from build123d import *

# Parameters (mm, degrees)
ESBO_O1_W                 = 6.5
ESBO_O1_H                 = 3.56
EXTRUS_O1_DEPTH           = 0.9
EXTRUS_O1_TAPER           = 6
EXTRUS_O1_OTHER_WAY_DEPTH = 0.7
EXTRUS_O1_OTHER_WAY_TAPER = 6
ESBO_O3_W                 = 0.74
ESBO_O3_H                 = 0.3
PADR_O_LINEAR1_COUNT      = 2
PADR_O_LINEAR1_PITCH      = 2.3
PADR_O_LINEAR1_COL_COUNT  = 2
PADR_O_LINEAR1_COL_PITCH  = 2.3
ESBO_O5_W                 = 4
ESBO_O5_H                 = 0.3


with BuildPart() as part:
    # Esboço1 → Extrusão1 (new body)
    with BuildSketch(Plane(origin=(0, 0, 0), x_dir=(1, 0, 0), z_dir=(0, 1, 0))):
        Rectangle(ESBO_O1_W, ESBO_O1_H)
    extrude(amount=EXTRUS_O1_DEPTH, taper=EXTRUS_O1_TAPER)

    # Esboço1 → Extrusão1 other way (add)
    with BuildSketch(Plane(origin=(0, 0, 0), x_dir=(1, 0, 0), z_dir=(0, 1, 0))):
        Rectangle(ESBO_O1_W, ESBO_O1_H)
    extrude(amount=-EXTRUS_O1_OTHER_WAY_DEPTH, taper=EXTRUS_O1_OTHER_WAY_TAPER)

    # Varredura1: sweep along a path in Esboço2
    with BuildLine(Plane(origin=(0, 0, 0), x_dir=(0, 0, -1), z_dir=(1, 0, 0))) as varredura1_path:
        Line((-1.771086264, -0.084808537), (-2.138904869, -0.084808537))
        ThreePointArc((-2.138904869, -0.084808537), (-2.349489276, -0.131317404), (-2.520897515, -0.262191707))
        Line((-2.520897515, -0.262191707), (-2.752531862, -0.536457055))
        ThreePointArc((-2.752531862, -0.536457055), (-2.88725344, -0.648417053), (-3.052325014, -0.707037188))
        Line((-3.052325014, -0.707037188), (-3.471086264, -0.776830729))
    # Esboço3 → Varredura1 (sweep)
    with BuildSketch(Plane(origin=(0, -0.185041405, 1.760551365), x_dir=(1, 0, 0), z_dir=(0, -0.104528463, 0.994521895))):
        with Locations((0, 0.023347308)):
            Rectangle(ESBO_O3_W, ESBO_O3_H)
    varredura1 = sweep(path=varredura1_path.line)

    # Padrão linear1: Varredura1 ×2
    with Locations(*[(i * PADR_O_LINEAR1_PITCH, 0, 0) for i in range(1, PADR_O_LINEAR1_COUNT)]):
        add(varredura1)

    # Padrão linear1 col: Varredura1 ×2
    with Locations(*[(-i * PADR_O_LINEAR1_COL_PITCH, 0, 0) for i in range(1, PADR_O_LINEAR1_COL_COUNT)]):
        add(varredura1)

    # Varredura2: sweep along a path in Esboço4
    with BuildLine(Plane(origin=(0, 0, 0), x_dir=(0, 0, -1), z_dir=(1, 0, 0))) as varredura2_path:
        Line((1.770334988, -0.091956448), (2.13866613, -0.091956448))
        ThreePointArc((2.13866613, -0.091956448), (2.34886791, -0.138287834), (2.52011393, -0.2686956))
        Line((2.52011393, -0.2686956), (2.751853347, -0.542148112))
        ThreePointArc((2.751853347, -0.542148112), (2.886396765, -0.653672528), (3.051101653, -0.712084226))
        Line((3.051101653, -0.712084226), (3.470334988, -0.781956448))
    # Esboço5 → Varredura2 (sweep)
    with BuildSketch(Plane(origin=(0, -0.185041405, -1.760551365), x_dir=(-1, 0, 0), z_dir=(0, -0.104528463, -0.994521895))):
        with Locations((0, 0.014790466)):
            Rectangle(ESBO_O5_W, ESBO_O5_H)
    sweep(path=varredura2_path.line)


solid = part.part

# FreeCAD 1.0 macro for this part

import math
import FreeCAD as App
import Part
import Sketcher
from FreeCAD import Vector

doc = App.newDocument("Part")
params = doc.addObject("Spreadsheet::Sheet", "Params")
for row, (alias, value) in enumerate([
    ("sketch1_width", "6.5 mm"),
    ("sketch1_height", "3.56 mm"),
    ("pad1_length", "0.9 mm"),
    ("pad1_taper", "-6 deg"),
    ("sketch2_width", "6.5 mm"),
    ("sketch2_height", "3.56 mm"),
    ("pad2_length", "0.7 mm"),
    ("pad2_taper", "-6 deg"),
    ("sketch3_height", "0.3 mm"),
    ("sketch3_width", "0.74 mm"),
    ("sketch4_radius", "0.5 mm"),
    ("linearpattern_pitch", "2.3 mm"),
    ("linearpattern2_pitch", "2.3 mm"),
    ("sketch5_width", "4 mm"),
    ("sketch5_height", "0.3 mm"),
    ("sketch6_radius", "0.5 mm"),
], start=1):
    params.set(f"A{row}", alias)
    params.set(f"B{row}", "=" + value)
    params.setAlias(f"B{row}", alias)

body = doc.addObject("PartDesign::Body", "Body")

# Sketch on XZ plane
sketch1 = doc.addObject("Sketcher::SketchObject", "Sketch")
body.addObject(sketch1)
sketch1.AttachmentSupport = (doc.XZ_Plane, [""])
sketch1.MapMode = "FlatFace"
sketch1.addGeometry([
    Part.LineSegment(Vector(-3.2, -1.8, 0), Vector(-3.2, 1.8, 0)),
    Part.LineSegment(Vector(-3.2, 1.8, 0), Vector(3.2, 1.8, 0)),
    Part.LineSegment(Vector(3.2, 1.8, 0), Vector(3.2, -1.8, 0)),
    Part.LineSegment(Vector(3.2, -1.8, 0), Vector(-3.2, -1.8, 0)),
], False)
sketch1.addConstraint([
    Sketcher.Constraint("Coincident", 0, 2, 1, 1),
    Sketcher.Constraint("Coincident", 1, 2, 2, 1),
    Sketcher.Constraint("Coincident", 2, 2, 3, 1),
    Sketcher.Constraint("Coincident", 3, 2, 0, 1),
    Sketcher.Constraint("Vertical", 0),
    Sketcher.Constraint("Horizontal", 1),
    Sketcher.Constraint("Vertical", 2),
    Sketcher.Constraint("Horizontal", 3),
    Sketcher.Constraint("Symmetric", 0, 2, 2, 2, -1, 1),
    Sketcher.Constraint("DistanceX", 1, 1, 1, 2, 6.5),
    Sketcher.Constraint("DistanceY", 0, 1, 0, 2, 3.56),
])
sketch1.setExpression("Constraints[9]", "Params.sketch1_width")
sketch1.setExpression("Constraints[10]", "Params.sketch1_height")
pad1 = doc.addObject("PartDesign::Pad", "Pad")
body.addObject(pad1)
pad1.Profile = sketch1
pad1.setExpression("Length", "Params.pad1_length")
pad1.Reversed = True
pad1.setExpression("TaperAngle", "Params.pad1_taper")

# Sketch on XZ plane
sketch2 = doc.addObject("Sketcher::SketchObject", "Sketch001")
body.addObject(sketch2)
sketch2.AttachmentSupport = (doc.XZ_Plane, [""])
sketch2.MapMode = "FlatFace"
sketch2.addGeometry([
    Part.LineSegment(Vector(-3.2, -1.8, 0), Vector(-3.2, 1.8, 0)),
    Part.LineSegment(Vector(-3.2, 1.8, 0), Vector(3.2, 1.8, 0)),
    Part.LineSegment(Vector(3.2, 1.8, 0), Vector(3.2, -1.8, 0)),
    Part.LineSegment(Vector(3.2, -1.8, 0), Vector(-3.2, -1.8, 0)),
], False)
sketch2.addConstraint([
    Sketcher.Constraint("Coincident", 0, 2, 1, 1),
    Sketcher.Constraint("Coincident", 1, 2, 2, 1),
    Sketcher.Constraint("Coincident", 2, 2, 3, 1),
    Sketcher.Constraint("Coincident", 3, 2, 0, 1),
    Sketcher.Constraint("Vertical", 0),
    Sketcher.Constraint("Horizontal", 1),
    Sketcher.Constraint("Vertical", 2),
    Sketcher.Constraint("Horizontal", 3),
    Sketcher.Constraint("Symmetric", 0, 2, 2, 2, -1, 1),
    Sketcher.Constraint("DistanceX", 1, 1, 1, 2, 6.5),
    Sketcher.Constraint("DistanceY", 0, 1, 0, 2, 3.56),
])
sketch2.setExpression("Constraints[9]", "Params.sketch2_width")
sketch2.setExpression("Constraints[10]", "Params.sketch2_height")
pad2 = doc.addObject("PartDesign::Pad", "Pad001")
body.addObject(pad2)
pad2.Profile = sketch2
pad2.setExpression("Length", "Params.pad2_length")
pad2.setExpression("TaperAngle", "Params.pad2_taper")

# Sketch on an angled plane
sketch3 = doc.addObject("Sketcher::SketchObject", "Sketch002")
body.addObject(sketch3)
sketch3.Placement = App.Placement(Vector(0, -0.185041, 1.760551), App.Rotation(Vector(1, 0, 0), Vector(0, 0.994521895, 0.104528463), Vector(0, -0.104528463, 0.994521895), "ZXY"))
sketch3.addGeometry([
    Part.LineSegment(Vector(-0.37, 0.17, 0), Vector(-0.37, -0.13, 0)),
    Part.LineSegment(Vector(-0.37, -0.13, 0), Vector(0.37, -0.13, 0)),
    Part.LineSegment(Vector(0.37, -0.13, 0), Vector(0.37, 0.17, 0)),
    Part.LineSegment(Vector(0.37, 0.17, 0), Vector(-0.37, 0.17, 0)),
], False)
sketch3.addConstraint([
    Sketcher.Constraint("Coincident", 0, 2, 1, 1),
    Sketcher.Constraint("Coincident", 1, 2, 2, 1),
    Sketcher.Constraint("Coincident", 2, 2, 3, 1),
    Sketcher.Constraint("Coincident", 3, 2, 0, 1),
    Sketcher.Constraint("Vertical", 0),
    Sketcher.Constraint("Horizontal", 1),
    Sketcher.Constraint("Vertical", 2),
    Sketcher.Constraint("Horizontal", 3),
    Sketcher.Constraint("DistanceY", 0, 2, 0, 1, 0.3),
    Sketcher.Constraint("DistanceX", 1, 1, 1, 2, 0.74),
    Sketcher.Constraint("DistanceX", 0, 2, -1, 1, 0.37),
    Sketcher.Constraint("DistanceY", 0, 2, -1, 1, 0.126653),
])
sketch3.setExpression("Constraints[8]", "Params.sketch3_height")
sketch3.setExpression("Constraints[9]", "Params.sketch3_width")

# Sketch on YZ plane
sketch4 = doc.addObject("Sketcher::SketchObject", "Sketch003")
body.addObject(sketch4)
sketch4.AttachmentSupport = (doc.YZ_Plane, [""])
sketch4.MapMode = "FlatFace"
sketch4.addGeometry([
    Part.LineSegment(Vector(-0.08, 1.77, 0), Vector(-0.08, 2.14, 0)),  # 0
    Part.ArcOfCircle(Part.Circle(Vector(-0.58, 2.14, 0), Vector(0, 0, 1), 0.5), math.radians(0), math.radians(50)),  # 1
    Part.LineSegment(Vector(-0.26, 2.52, 0), Vector(-0.54, 2.75, 0)),  # 2
    Part.ArcOfCircle(Part.Circle(Vector(-0.21, 3.13, 0), Vector(0, 0, 1), 0.5), math.radians(-171), math.radians(-130)),  # 3
    Part.LineSegment(Vector(-0.71, 3.05, 0), Vector(-0.78, 3.47, 0)),  # 4
], False)
sketch4.addConstraint([
    Sketcher.Constraint("Tangent", 0, 2, 1, 1),
    Sketcher.Constraint("Tangent", 1, 2, 2, 1),
    Sketcher.Constraint("Tangent", 2, 2, 3, 2),
    Sketcher.Constraint("Tangent", 3, 1, 4, 1),
    Sketcher.Constraint("Vertical", 0),
    Sketcher.Constraint("Equal", 1, 3),
    Sketcher.Constraint("Radius", 1, 0.5),
    Sketcher.Constraint("DistanceY", 0, 1, 0, 2, 0.367819),
    Sketcher.Constraint("DistanceY", 3, 1, 3, 3, 0.082199),
    Sketcher.Constraint("DistanceX", 1, 3, -1, 1, 0.584809),
    Sketcher.Constraint("DistanceX", 3, 3, -1, 1, 0.21384),
    Sketcher.Constraint("DistanceX", 1, 2, -1, 1, 0.262192),
    Sketcher.Constraint("DistanceY", -1, 1, 2, 2, 2.752532),
    Sketcher.Constraint("DistanceX", 4, 2, -1, 1, 0.776831),
])
sketch4.setExpression("Constraints[6]", "Params.sketch4_radius")
doc.recompute()

additivepipe = doc.addObject("PartDesign::AdditivePipe", "AdditivePipe")
body.addObject(additivepipe)
additivepipe.Profile = sketch3
additivepipe.Spine = (sketch4, ["Edge1", "Edge2", "Edge3", "Edge4", "Edge5"])
doc.recompute()

linearpattern = doc.addObject("PartDesign::LinearPattern", "LinearPattern")
body.addObject(linearpattern)
linearpattern.Originals = [additivepipe]
linearpattern.Direction = (doc.X_Axis, [""])
linearpattern.Mode = "offset"
linearpattern.setExpression("Offset", "Params.linearpattern_pitch")
linearpattern.Occurrences = 2
body.Tip = linearpattern
doc.recompute()

linearpattern2 = doc.addObject("PartDesign::LinearPattern", "LinearPattern001")
body.addObject(linearpattern2)
linearpattern2.Originals = [additivepipe]
linearpattern2.Direction = (doc.X_Axis, [""])
linearpattern2.Mode = "offset"
linearpattern2.setExpression("Offset", "Params.linearpattern2_pitch")
linearpattern2.Occurrences = 2
linearpattern2.Reversed = True
body.Tip = linearpattern2

# Sketch on an angled plane
sketch5 = doc.addObject("Sketcher::SketchObject", "Sketch004")
body.addObject(sketch5)
sketch5.Placement = App.Placement(Vector(0, -0.185041, -1.760551), App.Rotation(Vector(-1, 0, 0), Vector(0, 0.994521895, -0.104528463), Vector(0, -0.104528463, -0.994521895), "ZXY"))
sketch5.addGeometry([
    Part.LineSegment(Vector(-2, 0.16, 0), Vector(-2, -0.14, 0)),
    Part.LineSegment(Vector(-2, -0.14, 0), Vector(2, -0.14, 0)),
    Part.LineSegment(Vector(2, -0.14, 0), Vector(2, 0.16, 0)),
    Part.LineSegment(Vector(2, 0.16, 0), Vector(-2, 0.16, 0)),
], False)
sketch5.addConstraint([
    Sketcher.Constraint("Coincident", 0, 2, 1, 1),
    Sketcher.Constraint("Coincident", 1, 2, 2, 1),
    Sketcher.Constraint("Coincident", 2, 2, 3, 1),
    Sketcher.Constraint("Coincident", 3, 2, 0, 1),
    Sketcher.Constraint("Vertical", 0),
    Sketcher.Constraint("Horizontal", 1),
    Sketcher.Constraint("Vertical", 2),
    Sketcher.Constraint("Horizontal", 3),
    Sketcher.Constraint("DistanceX", 1, 1, 1, 2, 4.0),
    Sketcher.Constraint("DistanceY", 0, 2, 0, 1, 0.3),
    Sketcher.Constraint("DistanceX", 0, 2, -1, 1, 2.0),
    Sketcher.Constraint("DistanceY", 0, 2, -1, 1, 0.13521),
])
sketch5.setExpression("Constraints[8]", "Params.sketch5_width")
sketch5.setExpression("Constraints[9]", "Params.sketch5_height")

# Sketch on YZ plane
sketch6 = doc.addObject("Sketcher::SketchObject", "Sketch005")
body.addObject(sketch6)
sketch6.AttachmentSupport = (doc.YZ_Plane, [""])
sketch6.MapMode = "FlatFace"
sketch6.addGeometry([
    Part.LineSegment(Vector(-0.09, -1.77, 0), Vector(-0.09, -2.14, 0)),  # 0
    Part.ArcOfCircle(Part.Circle(Vector(-0.59, -2.14, 0), Vector(0, 0, 1), 0.5), math.radians(-50), math.radians(0)),  # 1
    Part.LineSegment(Vector(-0.27, -2.52, 0), Vector(-0.54, -2.75, 0)),  # 2
    Part.ArcOfCircle(Part.Circle(Vector(-0.22, -3.13, 0), Vector(0, 0, 1), 0.5), math.radians(130), math.radians(171)),  # 3
    Part.LineSegment(Vector(-0.71, -3.05, 0), Vector(-0.78, -3.47, 0)),  # 4
], False)
sketch6.addConstraint([
    Sketcher.Constraint("Tangent", 0, 2, 1, 2),
    Sketcher.Constraint("Tangent", 1, 1, 2, 1),
    Sketcher.Constraint("Tangent", 2, 2, 3, 1),
    Sketcher.Constraint("Tangent", 3, 2, 4, 1),
    Sketcher.Constraint("Vertical", 0),
    Sketcher.Constraint("Equal", 1, 3),
    Sketcher.Constraint("Radius", 1, 0.5),
    Sketcher.Constraint("DistanceX", 4, 2, 1, 3, 0.19),
    Sketcher.Constraint("DistanceY", 0, 2, 0, 1, 0.368331),
    Sketcher.Constraint("DistanceY", 3, 3, -1, 1, 3.133301),
    Sketcher.Constraint("DistanceY", 3, 2, -1, 1, 3.051102),
    Sketcher.Constraint("Distance", 2, 0.35844),
    Sketcher.Constraint("DistanceX", 2, 2, -1, 1, 0.542148),
    Sketcher.Constraint("DistanceX", 1, 3, 3, 3, 0.373069),
])
sketch6.setExpression("Constraints[6]", "Params.sketch6_radius")
doc.recompute()

additivepipe2 = doc.addObject("PartDesign::AdditivePipe", "AdditivePipe001")
body.addObject(additivepipe2)
additivepipe2.Profile = sketch5
additivepipe2.Spine = (sketch6, ["Edge1", "Edge2", "Edge3", "Edge4", "Edge5"])

doc.recompute()
